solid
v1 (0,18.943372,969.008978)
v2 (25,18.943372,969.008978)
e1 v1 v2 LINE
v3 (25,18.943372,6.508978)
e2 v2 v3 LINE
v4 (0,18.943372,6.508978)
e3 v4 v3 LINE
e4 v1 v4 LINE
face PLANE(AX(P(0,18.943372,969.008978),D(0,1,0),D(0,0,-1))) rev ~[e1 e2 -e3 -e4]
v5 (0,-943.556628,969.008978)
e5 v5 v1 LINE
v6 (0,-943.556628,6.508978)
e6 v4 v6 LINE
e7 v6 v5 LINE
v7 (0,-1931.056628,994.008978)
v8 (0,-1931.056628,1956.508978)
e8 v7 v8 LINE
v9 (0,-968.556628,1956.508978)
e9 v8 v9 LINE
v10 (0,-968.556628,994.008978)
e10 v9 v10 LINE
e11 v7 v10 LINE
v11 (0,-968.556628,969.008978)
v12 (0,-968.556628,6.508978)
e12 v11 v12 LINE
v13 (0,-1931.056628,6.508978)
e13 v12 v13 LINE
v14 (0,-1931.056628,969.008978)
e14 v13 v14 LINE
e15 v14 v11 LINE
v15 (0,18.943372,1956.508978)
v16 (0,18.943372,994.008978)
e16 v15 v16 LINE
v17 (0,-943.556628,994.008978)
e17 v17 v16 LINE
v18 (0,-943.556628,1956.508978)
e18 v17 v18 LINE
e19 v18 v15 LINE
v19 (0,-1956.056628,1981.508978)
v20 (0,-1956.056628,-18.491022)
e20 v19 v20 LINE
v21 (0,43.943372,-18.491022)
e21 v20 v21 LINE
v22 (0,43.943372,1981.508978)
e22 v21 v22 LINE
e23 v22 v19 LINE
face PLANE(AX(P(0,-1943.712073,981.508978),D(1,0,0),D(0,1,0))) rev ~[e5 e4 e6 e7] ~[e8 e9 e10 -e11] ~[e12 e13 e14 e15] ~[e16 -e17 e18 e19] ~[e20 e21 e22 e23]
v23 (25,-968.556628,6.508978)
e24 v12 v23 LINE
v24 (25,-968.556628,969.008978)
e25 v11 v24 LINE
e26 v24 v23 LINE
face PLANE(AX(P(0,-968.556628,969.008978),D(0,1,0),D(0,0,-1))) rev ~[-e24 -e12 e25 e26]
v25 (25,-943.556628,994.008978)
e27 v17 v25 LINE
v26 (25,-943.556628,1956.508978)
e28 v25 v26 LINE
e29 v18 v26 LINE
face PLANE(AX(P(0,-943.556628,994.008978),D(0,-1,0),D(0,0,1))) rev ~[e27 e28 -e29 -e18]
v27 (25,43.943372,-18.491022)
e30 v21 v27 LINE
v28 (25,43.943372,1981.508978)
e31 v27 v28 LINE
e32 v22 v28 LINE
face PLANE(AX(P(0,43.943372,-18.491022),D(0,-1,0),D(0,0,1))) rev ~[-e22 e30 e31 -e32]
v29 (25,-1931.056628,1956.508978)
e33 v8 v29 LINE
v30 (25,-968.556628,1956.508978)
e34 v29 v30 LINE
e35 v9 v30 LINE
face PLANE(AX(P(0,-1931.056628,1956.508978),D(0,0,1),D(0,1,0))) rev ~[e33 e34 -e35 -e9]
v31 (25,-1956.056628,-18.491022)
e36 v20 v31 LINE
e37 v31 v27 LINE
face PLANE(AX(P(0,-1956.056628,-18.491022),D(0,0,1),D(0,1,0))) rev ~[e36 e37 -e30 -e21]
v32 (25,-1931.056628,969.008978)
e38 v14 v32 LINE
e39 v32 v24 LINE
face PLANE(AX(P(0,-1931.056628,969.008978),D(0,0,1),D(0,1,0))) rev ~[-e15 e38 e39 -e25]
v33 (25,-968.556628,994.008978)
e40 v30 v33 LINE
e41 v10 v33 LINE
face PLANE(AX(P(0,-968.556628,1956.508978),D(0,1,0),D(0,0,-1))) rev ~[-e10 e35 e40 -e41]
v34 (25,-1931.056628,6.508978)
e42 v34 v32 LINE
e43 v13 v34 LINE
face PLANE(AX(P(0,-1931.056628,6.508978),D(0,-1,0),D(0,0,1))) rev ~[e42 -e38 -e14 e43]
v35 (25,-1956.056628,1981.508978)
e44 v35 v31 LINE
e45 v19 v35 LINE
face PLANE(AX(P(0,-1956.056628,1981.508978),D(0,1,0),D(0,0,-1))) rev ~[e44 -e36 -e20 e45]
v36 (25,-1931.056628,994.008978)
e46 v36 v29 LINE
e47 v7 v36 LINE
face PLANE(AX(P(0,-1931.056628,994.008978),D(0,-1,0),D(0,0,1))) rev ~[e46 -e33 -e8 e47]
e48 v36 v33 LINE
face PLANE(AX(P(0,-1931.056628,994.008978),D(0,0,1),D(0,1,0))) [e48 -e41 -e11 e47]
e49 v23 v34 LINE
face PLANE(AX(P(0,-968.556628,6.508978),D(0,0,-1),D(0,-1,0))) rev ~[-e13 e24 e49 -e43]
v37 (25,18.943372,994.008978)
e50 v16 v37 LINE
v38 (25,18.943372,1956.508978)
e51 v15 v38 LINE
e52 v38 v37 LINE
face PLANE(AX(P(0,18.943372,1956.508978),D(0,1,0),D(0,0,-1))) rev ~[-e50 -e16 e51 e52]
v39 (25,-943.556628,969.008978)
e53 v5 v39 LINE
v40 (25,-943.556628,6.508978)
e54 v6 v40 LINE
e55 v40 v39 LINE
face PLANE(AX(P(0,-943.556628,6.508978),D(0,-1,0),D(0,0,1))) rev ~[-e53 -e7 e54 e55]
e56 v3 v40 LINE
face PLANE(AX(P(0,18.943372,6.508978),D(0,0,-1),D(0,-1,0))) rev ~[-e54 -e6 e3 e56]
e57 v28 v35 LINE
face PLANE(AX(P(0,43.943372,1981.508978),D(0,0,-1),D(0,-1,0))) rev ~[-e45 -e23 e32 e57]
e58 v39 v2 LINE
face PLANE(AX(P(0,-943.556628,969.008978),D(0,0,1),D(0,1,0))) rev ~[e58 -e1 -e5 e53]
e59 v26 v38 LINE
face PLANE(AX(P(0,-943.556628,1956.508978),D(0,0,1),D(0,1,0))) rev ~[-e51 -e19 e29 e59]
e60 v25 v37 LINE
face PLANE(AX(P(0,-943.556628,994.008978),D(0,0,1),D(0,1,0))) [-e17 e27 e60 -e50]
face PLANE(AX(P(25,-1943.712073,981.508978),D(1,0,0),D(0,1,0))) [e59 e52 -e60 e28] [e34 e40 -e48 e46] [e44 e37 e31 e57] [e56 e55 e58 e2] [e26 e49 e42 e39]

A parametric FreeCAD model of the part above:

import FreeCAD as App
import Part
import Sketcher
from FreeCAD import Vector
Q = App.Units.Quantity


def add_polygon(sketch, points):
    """Adds a closed chain of lines whose ends are joined by coincident constraints."""
    first, n = sketch.GeometryCount, len(points)
    for a, b in zip(points, points[1:] + points[:1]):
        sketch.addGeometry(Part.LineSegment(App.Vector(*a, 0), App.Vector(*b, 0)), False)
    for i in range(n):
        sketch.addConstraint(Sketcher.Constraint("Coincident", first + i, 2, first + (i + 1) % n, 1))

doc = App.newDocument("Part")
body = doc.addObject("PartDesign::Body", "Body")

sketch1 = body.newObject("Sketcher::SketchObject", "Sketch")
sketch1.AttachmentSupport = (doc.getObject("YZ_Plane"), [""])
sketch1.MapMode = "FlatFace"
add_polygon(sketch1, [(-1956, 1982), (-1956, -18), (44, -18), (44, 1982)])
add_polygon(sketch1, [(-1931, 7), (-1931, 969), (-969, 969), (-969, 7)])
add_polygon(sketch1, [(-969, 994), (-1931, 994), (-1931, 1957), (-969, 1957)])
add_polygon(sketch1, [(-944, 1957), (19, 1957), (19, 994), (-944, 994)])
add_polygon(sketch1, [(19, 969), (19, 7), (-944, 7), (-944, 969)])
sketch1.addConstraint(Sketcher.Constraint("Vertical", 0))
sketch1.addConstraint(Sketcher.Constraint("Horizontal", 1))
sketch1.addConstraint(Sketcher.Constraint("Vertical", 2))
sketch1.addConstraint(Sketcher.Constraint("Horizontal", 3))
sketch1.addConstraint(Sketcher.Constraint("Vertical", 4))
sketch1.addConstraint(Sketcher.Constraint("Horizontal", 5))
sketch1.addConstraint(Sketcher.Constraint("Vertical", 6))
sketch1.addConstraint(Sketcher.Constraint("Horizontal", 7))
sketch1.addConstraint(Sketcher.Constraint("Horizontal", 8))
sketch1.addConstraint(Sketcher.Constraint("Vertical", 9))
sketch1.addConstraint(Sketcher.Constraint("Horizontal", 10))
sketch1.addConstraint(Sketcher.Constraint("Vertical", 11))
sketch1.addConstraint(Sketcher.Constraint("Horizontal", 12))
sketch1.addConstraint(Sketcher.Constraint("Vertical", 13))
sketch1.addConstraint(Sketcher.Constraint("Horizontal", 14))
sketch1.addConstraint(Sketcher.Constraint("Vertical", 15))
sketch1.addConstraint(Sketcher.Constraint("Vertical", 16))
sketch1.addConstraint(Sketcher.Constraint("Horizontal", 17))
sketch1.addConstraint(Sketcher.Constraint("Vertical", 18))
sketch1.addConstraint(Sketcher.Constraint("Horizontal", 19))
sketch1.addConstraint(Sketcher.Constraint("Horizontal", 10, 2, 12, 2))
sketch1.addConstraint(Sketcher.Constraint("Horizontal", 11, 2, 13, 2))
sketch1.addConstraint(Sketcher.Constraint("Horizontal", 7, 2, 16, 2))
sketch1.addConstraint(Sketcher.Constraint("Horizontal", 5, 2, 18, 2))
sketch1.addConstraint(Sketcher.Constraint("Vertical", 7, 2, 8, 2))
sketch1.addConstraint(Sketcher.Constraint("Vertical", 6, 2, 10, 2))
sketch1.addConstraint(Sketcher.Constraint("Vertical", 13, 2, 16, 2))
sketch1.addConstraint(Sketcher.Constraint("Vertical", 15, 2, 17, 2))
sketch1.addConstraint(Sketcher.Constraint("Equal", 10, 12))
sketch1.addConstraint(Sketcher.Constraint("Equal", 3, 0))
sketch1.addConstraint(Sketcher.Constraint("Equal", 19, 4))
sketch1.addConstraint(Sketcher.Constraint("Equal", 6, 9))
sketch1.addConstraint(Sketcher.Constraint("DistanceX", 1, 1, 1, 2, Q("2000 mm")))
sketch1.addConstraint(Sketcher.Constraint("DistanceX", 5, 1, 5, 2, Q("962.5 mm")))
sketch1.addConstraint(Sketcher.Constraint("DistanceX", 0, 2, 4, 2, Q("25 mm")))
sketch1.addConstraint(Sketcher.Constraint("DistanceY", 0, 2, 6, 2, Q("25 mm")))
sketch1.addConstraint(Sketcher.Constraint("DistanceY", 4, 2, 8, 2, Q("25 mm")))
sketch1.addConstraint(Sketcher.Constraint("DistanceX", 12, 2, 2, 2, Q("25 mm")))
sketch1.addConstraint(Sketcher.Constraint("DistanceX", 0, 2, -1, 1, Q("1956.056628 mm")))
sketch1.addConstraint(Sketcher.Constraint("DistanceY", -1, 1, 2, 2, Q("1981.508978 mm")))
pad1 = body.newObject("PartDesign::Pad", "Pad")
pad1.Profile = sketch1
pad1.Length = 25

doc.recompute()
